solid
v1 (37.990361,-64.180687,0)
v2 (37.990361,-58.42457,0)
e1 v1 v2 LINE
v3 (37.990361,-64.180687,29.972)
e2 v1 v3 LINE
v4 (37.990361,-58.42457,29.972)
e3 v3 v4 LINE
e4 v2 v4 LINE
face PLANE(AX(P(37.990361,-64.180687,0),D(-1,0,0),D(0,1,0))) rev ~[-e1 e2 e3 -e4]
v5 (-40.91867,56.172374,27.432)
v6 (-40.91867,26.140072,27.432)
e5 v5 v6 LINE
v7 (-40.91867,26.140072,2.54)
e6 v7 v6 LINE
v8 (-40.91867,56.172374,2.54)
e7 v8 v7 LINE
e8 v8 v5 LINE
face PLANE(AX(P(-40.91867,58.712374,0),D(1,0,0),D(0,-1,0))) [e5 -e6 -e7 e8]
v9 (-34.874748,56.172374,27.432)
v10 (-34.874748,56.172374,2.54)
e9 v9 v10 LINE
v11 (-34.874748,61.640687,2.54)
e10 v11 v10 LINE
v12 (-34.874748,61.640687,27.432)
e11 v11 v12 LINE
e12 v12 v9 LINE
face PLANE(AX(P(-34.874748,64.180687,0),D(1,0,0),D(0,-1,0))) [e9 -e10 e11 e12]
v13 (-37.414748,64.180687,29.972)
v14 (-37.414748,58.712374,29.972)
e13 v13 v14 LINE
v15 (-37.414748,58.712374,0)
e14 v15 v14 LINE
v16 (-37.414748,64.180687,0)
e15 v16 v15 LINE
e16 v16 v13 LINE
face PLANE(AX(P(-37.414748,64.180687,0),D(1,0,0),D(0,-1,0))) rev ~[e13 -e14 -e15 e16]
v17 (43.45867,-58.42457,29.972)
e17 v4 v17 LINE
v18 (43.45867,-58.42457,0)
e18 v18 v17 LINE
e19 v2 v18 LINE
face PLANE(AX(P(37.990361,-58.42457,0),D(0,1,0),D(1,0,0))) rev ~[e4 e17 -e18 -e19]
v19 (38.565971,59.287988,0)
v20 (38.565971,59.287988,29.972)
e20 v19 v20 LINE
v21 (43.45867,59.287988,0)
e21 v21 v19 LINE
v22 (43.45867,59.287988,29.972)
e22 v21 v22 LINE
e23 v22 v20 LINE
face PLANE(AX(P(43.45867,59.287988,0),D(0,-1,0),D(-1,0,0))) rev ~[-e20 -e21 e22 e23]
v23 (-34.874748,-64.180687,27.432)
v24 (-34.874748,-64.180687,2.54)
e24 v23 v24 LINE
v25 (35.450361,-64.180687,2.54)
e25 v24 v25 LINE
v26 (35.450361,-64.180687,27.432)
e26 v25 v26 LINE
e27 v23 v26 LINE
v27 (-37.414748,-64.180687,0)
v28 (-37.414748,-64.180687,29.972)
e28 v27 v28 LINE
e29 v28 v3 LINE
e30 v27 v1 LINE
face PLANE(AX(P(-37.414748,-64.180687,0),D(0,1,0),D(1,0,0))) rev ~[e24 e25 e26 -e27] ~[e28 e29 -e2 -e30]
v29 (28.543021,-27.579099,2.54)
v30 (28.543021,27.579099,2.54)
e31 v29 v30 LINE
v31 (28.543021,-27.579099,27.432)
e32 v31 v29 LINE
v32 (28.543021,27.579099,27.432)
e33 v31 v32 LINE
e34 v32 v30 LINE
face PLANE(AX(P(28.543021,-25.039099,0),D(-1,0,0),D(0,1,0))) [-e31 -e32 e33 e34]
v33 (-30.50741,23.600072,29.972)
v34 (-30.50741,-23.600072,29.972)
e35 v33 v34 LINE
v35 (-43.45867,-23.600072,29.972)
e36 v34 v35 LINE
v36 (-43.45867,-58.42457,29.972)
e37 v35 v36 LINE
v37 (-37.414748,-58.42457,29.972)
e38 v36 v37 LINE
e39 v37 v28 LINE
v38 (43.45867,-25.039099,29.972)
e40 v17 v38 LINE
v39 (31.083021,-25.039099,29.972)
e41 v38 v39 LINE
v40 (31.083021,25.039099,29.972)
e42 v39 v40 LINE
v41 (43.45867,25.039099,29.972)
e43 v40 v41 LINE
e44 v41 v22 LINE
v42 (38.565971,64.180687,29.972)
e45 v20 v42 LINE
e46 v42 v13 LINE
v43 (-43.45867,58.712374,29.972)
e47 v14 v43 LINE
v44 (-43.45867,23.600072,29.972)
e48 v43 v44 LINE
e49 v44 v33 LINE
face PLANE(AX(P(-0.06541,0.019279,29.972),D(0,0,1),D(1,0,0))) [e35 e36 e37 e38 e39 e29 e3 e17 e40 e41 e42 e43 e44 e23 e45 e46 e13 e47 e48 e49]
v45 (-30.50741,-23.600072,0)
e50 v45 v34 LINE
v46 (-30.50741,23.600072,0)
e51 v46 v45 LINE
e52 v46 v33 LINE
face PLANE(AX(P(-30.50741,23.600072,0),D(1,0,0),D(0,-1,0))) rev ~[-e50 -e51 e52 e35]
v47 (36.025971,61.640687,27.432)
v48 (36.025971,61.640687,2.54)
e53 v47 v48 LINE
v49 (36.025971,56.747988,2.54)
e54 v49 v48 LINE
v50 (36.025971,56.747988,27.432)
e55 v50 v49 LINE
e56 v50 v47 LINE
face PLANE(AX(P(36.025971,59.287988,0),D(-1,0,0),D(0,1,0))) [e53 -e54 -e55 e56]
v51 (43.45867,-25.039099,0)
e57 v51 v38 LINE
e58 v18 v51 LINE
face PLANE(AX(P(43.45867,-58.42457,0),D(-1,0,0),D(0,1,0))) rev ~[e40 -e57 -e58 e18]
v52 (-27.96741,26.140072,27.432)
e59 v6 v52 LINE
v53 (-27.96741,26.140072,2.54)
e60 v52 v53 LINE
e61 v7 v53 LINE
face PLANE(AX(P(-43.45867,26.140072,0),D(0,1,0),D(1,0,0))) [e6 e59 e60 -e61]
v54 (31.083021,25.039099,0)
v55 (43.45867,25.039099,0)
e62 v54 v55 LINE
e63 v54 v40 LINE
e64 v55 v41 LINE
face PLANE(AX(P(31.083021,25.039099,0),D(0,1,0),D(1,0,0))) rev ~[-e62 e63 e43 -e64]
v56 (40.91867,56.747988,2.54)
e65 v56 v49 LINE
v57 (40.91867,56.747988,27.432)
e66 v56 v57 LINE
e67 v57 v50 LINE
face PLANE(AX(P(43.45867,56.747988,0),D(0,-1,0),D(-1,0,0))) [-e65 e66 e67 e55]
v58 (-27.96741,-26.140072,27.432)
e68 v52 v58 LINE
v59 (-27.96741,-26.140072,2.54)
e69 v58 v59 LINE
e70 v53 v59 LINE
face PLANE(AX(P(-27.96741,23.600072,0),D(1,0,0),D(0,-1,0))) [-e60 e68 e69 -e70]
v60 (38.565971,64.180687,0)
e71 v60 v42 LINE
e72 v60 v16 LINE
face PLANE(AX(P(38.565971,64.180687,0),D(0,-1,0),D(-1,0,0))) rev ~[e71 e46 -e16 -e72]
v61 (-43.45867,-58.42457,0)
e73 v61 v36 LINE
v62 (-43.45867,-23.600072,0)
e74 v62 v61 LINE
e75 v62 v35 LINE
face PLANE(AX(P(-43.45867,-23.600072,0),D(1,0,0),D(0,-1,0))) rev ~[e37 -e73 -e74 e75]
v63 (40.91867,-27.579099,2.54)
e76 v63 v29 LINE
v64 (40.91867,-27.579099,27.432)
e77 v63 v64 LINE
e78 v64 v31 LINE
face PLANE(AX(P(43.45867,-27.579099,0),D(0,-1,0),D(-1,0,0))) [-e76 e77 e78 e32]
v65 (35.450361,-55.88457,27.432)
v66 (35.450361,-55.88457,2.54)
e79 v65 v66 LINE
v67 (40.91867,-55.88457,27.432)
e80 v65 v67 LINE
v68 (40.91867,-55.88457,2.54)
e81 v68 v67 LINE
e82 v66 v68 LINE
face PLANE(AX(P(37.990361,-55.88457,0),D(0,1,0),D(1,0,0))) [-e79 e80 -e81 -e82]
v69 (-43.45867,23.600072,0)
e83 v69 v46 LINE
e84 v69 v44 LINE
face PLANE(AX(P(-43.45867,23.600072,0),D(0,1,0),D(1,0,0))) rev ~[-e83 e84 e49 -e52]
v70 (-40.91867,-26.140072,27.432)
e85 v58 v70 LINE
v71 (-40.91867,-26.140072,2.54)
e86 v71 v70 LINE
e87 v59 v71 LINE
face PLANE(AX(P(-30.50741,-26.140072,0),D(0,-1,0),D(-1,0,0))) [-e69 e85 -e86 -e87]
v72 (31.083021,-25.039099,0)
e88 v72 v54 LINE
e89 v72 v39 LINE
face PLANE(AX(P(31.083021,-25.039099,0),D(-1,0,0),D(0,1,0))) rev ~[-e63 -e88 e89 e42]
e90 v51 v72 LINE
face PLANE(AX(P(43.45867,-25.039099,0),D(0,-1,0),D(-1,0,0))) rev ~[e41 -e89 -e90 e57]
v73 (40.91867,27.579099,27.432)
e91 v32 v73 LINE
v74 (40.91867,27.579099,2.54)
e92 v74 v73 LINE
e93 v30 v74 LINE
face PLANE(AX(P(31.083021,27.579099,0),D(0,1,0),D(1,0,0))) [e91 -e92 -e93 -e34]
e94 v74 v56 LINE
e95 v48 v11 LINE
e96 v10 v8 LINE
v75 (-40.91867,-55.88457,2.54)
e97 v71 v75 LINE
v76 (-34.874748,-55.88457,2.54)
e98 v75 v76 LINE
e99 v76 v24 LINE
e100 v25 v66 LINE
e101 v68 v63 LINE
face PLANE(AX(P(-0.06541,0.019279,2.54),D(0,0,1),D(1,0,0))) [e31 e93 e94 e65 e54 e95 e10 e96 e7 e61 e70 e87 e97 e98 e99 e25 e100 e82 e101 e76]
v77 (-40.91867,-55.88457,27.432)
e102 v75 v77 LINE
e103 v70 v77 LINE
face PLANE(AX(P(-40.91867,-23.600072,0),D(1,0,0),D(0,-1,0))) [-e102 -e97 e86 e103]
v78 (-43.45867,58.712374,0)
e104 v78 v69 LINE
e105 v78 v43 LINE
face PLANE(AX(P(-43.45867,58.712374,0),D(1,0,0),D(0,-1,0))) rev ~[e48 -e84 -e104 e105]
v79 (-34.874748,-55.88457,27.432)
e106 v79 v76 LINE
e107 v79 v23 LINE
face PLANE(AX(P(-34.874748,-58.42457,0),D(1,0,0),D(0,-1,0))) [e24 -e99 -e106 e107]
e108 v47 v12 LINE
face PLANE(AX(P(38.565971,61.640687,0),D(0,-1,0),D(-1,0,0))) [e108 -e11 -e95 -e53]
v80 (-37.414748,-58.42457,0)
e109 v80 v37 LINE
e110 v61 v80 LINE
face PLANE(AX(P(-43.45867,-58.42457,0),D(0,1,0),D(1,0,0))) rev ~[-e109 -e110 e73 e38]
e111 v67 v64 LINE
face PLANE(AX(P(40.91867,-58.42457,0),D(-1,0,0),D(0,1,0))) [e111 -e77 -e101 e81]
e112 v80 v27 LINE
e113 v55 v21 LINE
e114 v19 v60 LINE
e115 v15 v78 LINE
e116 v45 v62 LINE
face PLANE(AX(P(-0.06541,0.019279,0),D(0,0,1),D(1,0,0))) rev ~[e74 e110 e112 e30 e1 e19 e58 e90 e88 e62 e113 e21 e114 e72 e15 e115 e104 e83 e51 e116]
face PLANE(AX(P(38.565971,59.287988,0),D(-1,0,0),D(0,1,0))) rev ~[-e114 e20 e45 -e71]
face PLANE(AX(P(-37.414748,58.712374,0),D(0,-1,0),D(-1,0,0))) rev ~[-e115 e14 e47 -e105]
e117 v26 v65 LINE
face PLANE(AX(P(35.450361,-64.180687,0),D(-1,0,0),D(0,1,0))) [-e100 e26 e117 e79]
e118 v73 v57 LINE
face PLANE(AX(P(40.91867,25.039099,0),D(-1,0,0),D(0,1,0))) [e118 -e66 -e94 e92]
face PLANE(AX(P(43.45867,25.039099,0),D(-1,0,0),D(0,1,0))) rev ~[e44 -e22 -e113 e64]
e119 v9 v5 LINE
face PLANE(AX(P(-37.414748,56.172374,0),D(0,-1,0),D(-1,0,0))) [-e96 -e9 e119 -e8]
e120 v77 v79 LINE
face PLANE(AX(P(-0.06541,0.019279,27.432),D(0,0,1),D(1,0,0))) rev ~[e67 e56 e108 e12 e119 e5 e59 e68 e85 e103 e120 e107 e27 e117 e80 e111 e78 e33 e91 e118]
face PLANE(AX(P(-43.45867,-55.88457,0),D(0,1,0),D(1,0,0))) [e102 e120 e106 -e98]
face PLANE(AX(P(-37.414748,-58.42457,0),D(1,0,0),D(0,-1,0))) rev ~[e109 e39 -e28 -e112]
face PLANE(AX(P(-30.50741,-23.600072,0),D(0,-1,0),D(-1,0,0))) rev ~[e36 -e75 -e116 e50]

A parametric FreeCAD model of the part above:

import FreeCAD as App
import Part
import Sketcher
from FreeCAD import Vector


def faces_at(feature, points):
    """Names of the faces that lie closest to the given points."""
    faces = feature.Shape.Faces
    near = lambda p: min(range(len(faces)), key=lambda i: faces[i].distToShape(Part.Vertex(*p))[0])
    return sorted({f"Face{near(p) + 1}" for p in points})


def add_polygon(sketch, points):
    """Adds a closed chain of lines whose ends are joined by coincident constraints."""
    first, n = sketch.GeometryCount, len(points)
    for a, b in zip(points, points[1:] + points[:1]):
        sketch.addGeometry(Part.LineSegment(App.Vector(*a, 0), App.Vector(*b, 0)), False)
    for i in range(n):
        sketch.addConstraint(Sketcher.Constraint("Coincident", first + i, 2, first + (i + 1) % n, 1))

doc = App.newDocument("Part")
params = doc.addObject("Spreadsheet::Sheet", "Params")
for row, (alias, value) in enumerate([
    ("pad1_length", "1.18 in"),
    ("thickness_wall", "0.1 in"),
], start=1):
    params.set(f"A{row}", alias)
    params.set(f"B{row}", "=" + value)
    params.setAlias(f"B{row}", alias)

body = doc.addObject("PartDesign::Body", "Body")

# Sketch on XY plane
sketch1 = body.newObject("Sketcher::SketchObject", "Sketch")
sketch1.AttachmentSupport = (doc.getObject("XY_Plane"), [""])
sketch1.MapMode = "FlatFace"
add_polygon(sketch1, [(38.6, 64.2), (-37.4, 64.2), (-37.4, 58.7), (-43.5, 58.7), (-43.5, 23.6), (-30.5, 23.6), (-30.5, -23.6), (-43.5, -23.6), (-43.5, -58.4), (-37.4, -58.4), (-37.4, -64.2), (38, -64.2), (38, -58.4), (43.5, -58.4), (43.5, -25), (31.1, -25), (31.1, 25), (43.5, 25), (43.5, 59.3), (38.6, 59.3)])  # lines 0-19
sketch1.addConstraint(Sketcher.Constraint("Horizontal", 0))
sketch1.addConstraint(Sketcher.Constraint("Vertical", 1))
sketch1.addConstraint(Sketcher.Constraint("Horizontal", 2))
sketch1.addConstraint(Sketcher.Constraint("Vertical", 3))
sketch1.addConstraint(Sketcher.Constraint("Horizontal", 4))
sketch1.addConstraint(Sketcher.Constraint("Vertical", 5))
sketch1.addConstraint(Sketcher.Constraint("Horizontal", 6))
sketch1.addConstraint(Sketcher.Constraint("Vertical", 7))
sketch1.addConstraint(Sketcher.Constraint("Horizontal", 8))
sketch1.addConstraint(Sketcher.Constraint("Vertical", 9))
sketch1.addConstraint(Sketcher.Constraint("Horizontal", 10))
sketch1.addConstraint(Sketcher.Constraint("Vertical", 11))
sketch1.addConstraint(Sketcher.Constraint("Horizontal", 12))
sketch1.addConstraint(Sketcher.Constraint("Vertical", 13))
sketch1.addConstraint(Sketcher.Constraint("Horizontal", 14))
sketch1.addConstraint(Sketcher.Constraint("Vertical", 15))
sketch1.addConstraint(Sketcher.Constraint("Horizontal", 16))
sketch1.addConstraint(Sketcher.Constraint("Vertical", 17))
sketch1.addConstraint(Sketcher.Constraint("Horizontal", 18))
sketch1.addConstraint(Sketcher.Constraint("Vertical", 19))
sketch1.addConstraint(Sketcher.Constraint("Symmetric", 7, 2, 12, 2, -2))
sketch1.addConstraint(Sketcher.Constraint("Symmetric", 3, 2, 6, 2, -1))
sketch1.addConstraint(Sketcher.Constraint("Symmetric", 0, 2, 9, 2, -1))
sketch1.addConstraint(Sketcher.Constraint("Symmetric", 13, 2, 16, 2, -1))
sketch1.addConstraint(Sketcher.Constraint("Equal", 18, 19))
sketch1.addConstraint(Sketcher.Constraint("DistanceX", 18, 2, 18, 1, 4.892699))
sketch1.addConstraint(Sketcher.Constraint("DistanceY", 15, 1, 15, 2, 50.078198))
sketch1.addConstraint(Sketcher.Constraint("DistanceX", 0, 2, 0, 1, 75.980719))
sketch1.addConstraint(Sketcher.Constraint("DistanceX", 4, 1, 4, 2, 12.95126))
sketch1.addConstraint(Sketcher.Constraint("DistanceX", 10, 1, 10, 2, 75.40511))
sketch1.addConstraint(Sketcher.Constraint("DistanceX", 14, 2, 14, 1, 12.375649))
sketch1.addConstraint(Sketcher.Constraint("DistanceY", 13, 1, 13, 2, 33.385471))
sketch1.addConstraint(Sketcher.Constraint("DistanceY", 17, 1, 17, 2, 34.248888))
sketch1.addConstraint(Sketcher.Constraint("DistanceX", 2, 2, 2, 1, 6.043922))
sketch1.addConstraint(Sketcher.Constraint("DistanceY", 1, 2, 1, 1, 5.468313))
sketch1.addConstraint(Sketcher.Constraint("DistanceY", 3, 2, 3, 1, 35.112303))
pad1 = body.newObject("PartDesign::Pad", "Pad")
pad1.Profile = sketch1
pad1.setExpression("Length", "Params.pad1_length")
doc.recompute()

thickness = body.newObject("PartDesign::Thickness", "Thickness")
thickness.Base = (pad1, faces_at(pad1, [(0.288, -64.181, 14.986)]))
thickness.setExpression("Value", "Params.thickness_wall")
thickness.Reversed = True
thickness.Join = "Intersection"

doc.recompute()
